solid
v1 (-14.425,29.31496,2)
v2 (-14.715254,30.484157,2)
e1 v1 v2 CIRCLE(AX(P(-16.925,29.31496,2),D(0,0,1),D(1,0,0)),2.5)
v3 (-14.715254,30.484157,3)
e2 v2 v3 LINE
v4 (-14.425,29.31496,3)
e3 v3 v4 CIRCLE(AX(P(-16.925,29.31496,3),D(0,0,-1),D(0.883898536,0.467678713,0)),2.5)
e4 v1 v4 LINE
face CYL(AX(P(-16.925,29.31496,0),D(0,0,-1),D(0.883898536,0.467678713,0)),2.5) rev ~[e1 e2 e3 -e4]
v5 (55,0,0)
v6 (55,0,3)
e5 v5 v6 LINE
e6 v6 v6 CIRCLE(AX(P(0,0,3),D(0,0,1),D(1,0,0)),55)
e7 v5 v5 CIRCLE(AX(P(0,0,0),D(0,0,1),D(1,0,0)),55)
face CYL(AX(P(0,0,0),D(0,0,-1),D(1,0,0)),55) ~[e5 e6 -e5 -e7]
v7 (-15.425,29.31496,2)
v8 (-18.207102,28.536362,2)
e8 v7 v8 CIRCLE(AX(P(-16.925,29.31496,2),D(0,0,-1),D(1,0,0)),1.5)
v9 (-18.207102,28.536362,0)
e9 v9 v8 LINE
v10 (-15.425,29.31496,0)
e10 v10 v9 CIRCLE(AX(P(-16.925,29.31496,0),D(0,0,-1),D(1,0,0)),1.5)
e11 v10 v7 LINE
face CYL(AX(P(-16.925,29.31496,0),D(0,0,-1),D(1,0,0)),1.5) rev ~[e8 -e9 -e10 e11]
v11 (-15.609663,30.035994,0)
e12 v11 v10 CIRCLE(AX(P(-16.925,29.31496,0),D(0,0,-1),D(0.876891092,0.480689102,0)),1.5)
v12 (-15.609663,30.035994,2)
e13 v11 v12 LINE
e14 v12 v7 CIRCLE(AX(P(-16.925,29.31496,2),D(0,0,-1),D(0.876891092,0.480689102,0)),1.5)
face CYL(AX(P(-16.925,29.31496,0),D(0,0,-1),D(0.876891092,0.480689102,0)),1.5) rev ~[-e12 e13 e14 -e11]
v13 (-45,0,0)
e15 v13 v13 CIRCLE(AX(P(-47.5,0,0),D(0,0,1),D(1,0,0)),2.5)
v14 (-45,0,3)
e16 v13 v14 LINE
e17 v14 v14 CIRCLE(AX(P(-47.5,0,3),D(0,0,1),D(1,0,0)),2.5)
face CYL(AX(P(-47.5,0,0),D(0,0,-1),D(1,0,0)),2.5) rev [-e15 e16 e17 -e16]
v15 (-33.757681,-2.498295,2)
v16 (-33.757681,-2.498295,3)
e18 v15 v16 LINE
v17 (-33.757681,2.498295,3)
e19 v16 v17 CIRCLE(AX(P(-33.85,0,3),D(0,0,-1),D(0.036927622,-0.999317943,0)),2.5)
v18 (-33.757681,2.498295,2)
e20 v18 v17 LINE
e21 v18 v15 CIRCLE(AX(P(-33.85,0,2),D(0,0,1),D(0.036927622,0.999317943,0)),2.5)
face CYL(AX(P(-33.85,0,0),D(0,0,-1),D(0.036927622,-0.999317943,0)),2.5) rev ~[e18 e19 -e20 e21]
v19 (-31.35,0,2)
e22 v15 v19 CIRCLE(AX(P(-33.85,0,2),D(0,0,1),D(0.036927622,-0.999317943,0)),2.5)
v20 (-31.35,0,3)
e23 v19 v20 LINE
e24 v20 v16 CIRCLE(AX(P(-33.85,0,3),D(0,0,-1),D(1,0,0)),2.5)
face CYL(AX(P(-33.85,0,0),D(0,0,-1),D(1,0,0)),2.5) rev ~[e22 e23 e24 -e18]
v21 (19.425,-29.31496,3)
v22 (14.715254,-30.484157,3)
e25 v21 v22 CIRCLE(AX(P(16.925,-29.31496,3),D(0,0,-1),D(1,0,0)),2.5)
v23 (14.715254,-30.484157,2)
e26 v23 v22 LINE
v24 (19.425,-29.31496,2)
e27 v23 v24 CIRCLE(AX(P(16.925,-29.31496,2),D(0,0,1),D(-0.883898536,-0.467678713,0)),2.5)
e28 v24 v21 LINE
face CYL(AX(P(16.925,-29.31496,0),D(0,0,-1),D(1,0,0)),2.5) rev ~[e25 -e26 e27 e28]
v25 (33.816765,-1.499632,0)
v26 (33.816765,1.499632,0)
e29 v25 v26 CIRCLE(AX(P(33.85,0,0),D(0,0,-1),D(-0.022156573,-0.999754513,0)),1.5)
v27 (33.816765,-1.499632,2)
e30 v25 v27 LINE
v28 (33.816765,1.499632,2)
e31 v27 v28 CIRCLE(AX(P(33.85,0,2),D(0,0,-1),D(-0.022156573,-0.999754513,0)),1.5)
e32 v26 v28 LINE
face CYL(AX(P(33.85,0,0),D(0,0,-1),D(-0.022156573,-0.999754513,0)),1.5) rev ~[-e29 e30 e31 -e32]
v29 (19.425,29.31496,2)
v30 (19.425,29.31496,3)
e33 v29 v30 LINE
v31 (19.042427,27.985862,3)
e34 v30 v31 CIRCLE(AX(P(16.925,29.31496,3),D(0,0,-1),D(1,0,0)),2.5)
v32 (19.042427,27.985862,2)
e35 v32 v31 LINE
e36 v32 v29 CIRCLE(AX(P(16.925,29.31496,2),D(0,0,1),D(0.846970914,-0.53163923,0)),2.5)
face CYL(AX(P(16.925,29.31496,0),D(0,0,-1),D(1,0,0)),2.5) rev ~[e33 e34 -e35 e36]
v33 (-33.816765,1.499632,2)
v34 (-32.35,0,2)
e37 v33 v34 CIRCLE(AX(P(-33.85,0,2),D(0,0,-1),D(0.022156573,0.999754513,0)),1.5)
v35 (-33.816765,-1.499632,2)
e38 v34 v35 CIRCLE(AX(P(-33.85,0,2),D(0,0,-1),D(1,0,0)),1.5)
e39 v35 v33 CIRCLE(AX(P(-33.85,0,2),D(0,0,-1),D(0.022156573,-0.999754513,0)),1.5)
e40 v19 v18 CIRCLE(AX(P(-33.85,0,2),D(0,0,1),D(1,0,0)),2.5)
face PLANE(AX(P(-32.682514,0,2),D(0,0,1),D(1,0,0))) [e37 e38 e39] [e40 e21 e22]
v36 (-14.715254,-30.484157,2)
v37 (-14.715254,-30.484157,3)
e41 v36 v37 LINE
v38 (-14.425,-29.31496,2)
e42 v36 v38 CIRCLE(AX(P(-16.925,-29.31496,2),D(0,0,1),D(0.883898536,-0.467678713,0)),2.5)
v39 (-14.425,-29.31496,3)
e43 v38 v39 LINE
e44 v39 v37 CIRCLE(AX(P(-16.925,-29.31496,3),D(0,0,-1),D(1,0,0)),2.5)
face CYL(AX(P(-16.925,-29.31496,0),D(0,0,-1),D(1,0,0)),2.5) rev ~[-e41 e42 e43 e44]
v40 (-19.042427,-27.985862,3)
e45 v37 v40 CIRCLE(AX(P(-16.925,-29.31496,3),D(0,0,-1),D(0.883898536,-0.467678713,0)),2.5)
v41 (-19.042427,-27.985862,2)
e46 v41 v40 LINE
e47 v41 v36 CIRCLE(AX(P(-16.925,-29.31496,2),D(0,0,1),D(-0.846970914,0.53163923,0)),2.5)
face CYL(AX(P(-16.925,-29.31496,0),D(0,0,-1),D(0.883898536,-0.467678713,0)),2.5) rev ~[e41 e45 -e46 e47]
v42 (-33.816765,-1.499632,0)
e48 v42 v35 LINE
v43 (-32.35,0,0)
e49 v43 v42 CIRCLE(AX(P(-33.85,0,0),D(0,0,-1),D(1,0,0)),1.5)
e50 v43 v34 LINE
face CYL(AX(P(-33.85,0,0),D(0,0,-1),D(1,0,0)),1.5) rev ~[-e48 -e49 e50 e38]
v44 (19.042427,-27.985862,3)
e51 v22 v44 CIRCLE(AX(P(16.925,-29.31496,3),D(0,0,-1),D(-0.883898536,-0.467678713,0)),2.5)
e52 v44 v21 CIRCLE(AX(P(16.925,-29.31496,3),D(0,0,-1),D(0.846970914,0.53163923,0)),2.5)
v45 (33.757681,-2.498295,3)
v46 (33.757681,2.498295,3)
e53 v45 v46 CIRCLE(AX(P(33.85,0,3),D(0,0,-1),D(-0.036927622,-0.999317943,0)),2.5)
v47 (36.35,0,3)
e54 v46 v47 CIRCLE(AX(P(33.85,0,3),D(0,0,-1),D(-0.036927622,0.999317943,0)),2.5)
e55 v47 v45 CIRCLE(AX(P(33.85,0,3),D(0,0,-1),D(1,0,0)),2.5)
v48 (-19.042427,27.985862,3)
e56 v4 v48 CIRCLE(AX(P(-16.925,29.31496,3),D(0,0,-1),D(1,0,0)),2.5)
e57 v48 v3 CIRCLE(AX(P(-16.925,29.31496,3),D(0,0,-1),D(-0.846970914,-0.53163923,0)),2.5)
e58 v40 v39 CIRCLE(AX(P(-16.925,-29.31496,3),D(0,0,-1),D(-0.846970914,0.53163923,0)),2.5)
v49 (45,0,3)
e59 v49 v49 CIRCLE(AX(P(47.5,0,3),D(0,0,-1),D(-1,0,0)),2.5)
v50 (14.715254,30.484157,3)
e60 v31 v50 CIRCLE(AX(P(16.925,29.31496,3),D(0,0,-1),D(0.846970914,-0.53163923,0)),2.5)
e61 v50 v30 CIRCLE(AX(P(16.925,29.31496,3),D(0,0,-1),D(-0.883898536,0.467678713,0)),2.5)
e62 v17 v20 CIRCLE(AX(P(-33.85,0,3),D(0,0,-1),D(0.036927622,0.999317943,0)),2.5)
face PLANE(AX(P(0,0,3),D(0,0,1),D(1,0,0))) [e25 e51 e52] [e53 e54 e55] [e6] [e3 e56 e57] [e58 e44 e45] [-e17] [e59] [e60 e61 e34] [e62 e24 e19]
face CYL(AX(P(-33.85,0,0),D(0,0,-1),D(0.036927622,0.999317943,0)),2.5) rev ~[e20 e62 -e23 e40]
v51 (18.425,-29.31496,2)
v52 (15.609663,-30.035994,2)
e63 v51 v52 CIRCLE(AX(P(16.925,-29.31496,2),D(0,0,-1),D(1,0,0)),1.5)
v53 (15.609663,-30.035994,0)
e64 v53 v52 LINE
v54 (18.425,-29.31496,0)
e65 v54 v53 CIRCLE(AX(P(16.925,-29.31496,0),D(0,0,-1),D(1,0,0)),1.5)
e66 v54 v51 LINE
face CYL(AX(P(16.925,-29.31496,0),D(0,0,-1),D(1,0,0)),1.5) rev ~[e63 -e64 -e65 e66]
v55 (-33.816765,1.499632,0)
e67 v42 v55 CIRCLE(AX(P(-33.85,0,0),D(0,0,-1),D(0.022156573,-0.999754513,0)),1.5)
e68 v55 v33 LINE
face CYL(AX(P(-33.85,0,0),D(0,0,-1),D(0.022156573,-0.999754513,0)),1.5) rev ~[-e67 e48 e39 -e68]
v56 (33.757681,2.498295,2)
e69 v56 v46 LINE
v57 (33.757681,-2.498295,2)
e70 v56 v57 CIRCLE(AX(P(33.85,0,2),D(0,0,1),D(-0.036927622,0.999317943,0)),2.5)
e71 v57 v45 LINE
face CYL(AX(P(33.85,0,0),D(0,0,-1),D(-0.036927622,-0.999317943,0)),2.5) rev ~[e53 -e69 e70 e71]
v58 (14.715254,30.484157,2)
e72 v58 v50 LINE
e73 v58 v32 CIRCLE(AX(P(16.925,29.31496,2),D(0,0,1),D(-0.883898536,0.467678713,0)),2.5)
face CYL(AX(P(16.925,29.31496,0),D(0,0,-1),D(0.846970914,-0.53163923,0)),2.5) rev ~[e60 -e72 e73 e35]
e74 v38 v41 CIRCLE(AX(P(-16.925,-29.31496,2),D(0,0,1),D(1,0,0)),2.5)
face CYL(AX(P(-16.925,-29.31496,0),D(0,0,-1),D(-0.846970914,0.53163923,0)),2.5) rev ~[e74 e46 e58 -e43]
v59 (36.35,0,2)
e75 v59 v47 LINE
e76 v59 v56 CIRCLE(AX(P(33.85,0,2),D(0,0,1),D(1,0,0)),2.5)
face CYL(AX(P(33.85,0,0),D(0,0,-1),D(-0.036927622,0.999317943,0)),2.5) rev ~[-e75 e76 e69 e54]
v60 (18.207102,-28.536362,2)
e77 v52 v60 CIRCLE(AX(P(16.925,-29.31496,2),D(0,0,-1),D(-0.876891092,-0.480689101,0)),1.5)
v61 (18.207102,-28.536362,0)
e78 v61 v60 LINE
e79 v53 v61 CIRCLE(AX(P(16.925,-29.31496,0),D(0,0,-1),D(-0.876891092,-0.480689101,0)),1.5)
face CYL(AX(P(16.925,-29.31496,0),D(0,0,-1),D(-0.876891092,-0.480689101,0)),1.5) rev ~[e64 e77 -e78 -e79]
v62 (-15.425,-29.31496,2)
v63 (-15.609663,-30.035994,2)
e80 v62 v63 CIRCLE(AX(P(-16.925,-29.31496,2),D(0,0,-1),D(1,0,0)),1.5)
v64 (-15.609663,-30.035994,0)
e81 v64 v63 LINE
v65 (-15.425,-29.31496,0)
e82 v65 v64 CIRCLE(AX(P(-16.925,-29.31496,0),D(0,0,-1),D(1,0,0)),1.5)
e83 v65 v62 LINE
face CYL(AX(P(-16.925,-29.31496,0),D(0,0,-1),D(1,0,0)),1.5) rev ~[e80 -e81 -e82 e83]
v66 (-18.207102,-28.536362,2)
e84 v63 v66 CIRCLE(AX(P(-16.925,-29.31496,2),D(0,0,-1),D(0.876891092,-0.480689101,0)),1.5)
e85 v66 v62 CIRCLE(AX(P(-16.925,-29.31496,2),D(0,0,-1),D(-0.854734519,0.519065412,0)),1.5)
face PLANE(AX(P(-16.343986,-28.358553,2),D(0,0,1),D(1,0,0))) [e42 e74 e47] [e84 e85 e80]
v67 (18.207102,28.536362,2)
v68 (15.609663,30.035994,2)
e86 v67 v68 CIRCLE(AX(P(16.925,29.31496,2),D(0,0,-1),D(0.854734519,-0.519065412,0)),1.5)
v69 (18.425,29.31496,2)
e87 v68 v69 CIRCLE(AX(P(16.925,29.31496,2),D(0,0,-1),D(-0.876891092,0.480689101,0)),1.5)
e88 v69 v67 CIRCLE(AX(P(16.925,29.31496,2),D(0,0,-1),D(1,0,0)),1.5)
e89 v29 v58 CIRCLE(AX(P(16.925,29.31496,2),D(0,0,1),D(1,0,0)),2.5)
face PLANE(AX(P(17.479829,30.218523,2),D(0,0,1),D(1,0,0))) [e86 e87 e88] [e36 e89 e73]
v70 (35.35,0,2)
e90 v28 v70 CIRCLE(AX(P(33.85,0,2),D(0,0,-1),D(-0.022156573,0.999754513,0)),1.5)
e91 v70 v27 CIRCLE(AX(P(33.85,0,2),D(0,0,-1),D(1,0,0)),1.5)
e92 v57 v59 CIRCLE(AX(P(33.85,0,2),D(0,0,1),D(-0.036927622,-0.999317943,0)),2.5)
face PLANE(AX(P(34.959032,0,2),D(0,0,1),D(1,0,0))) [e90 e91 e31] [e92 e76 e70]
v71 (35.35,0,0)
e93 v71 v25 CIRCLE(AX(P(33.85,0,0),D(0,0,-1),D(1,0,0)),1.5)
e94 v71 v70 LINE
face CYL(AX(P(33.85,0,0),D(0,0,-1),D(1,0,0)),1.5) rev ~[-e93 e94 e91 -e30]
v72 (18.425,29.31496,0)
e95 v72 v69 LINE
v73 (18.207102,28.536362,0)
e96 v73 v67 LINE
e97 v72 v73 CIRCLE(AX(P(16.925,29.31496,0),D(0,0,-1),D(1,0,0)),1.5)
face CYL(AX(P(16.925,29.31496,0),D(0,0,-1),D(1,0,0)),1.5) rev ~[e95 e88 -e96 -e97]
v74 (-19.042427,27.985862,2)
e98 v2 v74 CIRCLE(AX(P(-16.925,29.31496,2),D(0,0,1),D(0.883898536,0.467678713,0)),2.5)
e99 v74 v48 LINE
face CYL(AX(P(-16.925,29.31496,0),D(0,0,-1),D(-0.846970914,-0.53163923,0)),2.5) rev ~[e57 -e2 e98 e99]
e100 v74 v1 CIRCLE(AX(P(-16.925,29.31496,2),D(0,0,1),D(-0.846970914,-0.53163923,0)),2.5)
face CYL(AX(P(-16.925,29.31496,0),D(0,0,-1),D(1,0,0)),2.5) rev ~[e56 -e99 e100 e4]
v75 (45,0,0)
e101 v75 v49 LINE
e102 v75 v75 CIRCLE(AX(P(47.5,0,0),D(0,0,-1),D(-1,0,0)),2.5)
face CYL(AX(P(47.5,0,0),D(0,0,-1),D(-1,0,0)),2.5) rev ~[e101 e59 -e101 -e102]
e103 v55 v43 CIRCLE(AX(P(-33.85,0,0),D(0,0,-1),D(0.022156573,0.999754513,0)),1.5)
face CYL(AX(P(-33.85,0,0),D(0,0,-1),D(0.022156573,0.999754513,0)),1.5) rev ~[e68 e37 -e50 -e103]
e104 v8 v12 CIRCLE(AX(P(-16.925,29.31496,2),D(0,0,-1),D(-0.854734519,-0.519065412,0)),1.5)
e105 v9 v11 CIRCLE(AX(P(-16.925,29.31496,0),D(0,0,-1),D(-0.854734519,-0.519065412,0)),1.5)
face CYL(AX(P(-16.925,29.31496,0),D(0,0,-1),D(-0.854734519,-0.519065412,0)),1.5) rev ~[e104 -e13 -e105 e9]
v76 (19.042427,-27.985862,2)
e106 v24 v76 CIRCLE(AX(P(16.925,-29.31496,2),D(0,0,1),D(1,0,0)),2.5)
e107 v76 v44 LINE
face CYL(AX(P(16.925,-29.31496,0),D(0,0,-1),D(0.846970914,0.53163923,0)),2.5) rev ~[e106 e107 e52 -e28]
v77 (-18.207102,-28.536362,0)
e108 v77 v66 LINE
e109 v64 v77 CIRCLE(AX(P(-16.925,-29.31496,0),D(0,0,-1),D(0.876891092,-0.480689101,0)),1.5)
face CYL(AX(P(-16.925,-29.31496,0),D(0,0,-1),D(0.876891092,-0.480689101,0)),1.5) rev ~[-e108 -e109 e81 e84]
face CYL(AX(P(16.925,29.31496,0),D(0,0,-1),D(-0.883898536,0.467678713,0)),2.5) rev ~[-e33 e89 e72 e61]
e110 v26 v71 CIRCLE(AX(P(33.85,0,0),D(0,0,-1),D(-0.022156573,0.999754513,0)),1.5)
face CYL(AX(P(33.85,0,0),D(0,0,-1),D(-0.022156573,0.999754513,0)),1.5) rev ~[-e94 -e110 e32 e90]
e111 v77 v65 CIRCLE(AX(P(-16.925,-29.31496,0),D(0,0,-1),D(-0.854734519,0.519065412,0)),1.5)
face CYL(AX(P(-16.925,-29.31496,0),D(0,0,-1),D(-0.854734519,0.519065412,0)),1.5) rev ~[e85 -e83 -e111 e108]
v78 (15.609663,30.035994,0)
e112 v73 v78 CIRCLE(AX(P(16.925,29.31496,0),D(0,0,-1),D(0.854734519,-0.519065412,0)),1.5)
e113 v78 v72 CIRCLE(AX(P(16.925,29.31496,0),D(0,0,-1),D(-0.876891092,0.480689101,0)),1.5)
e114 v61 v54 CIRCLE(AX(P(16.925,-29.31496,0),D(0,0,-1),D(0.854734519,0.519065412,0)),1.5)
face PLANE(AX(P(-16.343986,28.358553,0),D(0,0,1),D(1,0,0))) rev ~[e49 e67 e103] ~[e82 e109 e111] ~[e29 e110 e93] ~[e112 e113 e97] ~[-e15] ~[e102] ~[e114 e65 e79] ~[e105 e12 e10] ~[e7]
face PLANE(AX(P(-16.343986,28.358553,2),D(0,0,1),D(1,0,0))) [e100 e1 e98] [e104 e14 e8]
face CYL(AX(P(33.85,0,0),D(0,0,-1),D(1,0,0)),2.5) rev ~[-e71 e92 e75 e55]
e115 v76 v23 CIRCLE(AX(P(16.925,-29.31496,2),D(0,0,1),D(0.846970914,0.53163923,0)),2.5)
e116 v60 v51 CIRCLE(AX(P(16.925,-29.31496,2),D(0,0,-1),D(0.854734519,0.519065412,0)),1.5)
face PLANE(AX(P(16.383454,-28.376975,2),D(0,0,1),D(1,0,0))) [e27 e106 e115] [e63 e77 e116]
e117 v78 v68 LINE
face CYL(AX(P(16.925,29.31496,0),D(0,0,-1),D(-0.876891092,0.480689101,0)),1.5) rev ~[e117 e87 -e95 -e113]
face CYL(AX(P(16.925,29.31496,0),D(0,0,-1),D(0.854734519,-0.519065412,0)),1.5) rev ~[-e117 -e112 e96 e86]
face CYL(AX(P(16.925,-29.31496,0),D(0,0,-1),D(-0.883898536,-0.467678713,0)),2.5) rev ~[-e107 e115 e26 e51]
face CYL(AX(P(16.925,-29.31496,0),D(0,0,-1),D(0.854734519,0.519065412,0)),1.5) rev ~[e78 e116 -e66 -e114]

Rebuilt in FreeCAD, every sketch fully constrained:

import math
import FreeCAD as App
import Part
import Sketcher
from FreeCAD import Vector

doc = App.newDocument("Part")
body = doc.addObject("PartDesign::Body", "Body")

# Sketch on XY plane
sketch1 = body.newObject("Sketcher::SketchObject", "Sketch")
sketch1.AttachmentSupport = (doc.getObject("XY_Plane"), [""])
sketch1.MapMode = "FlatFace"
sketch1.addGeometry(Part.Circle(Vector(0, 0, 0), Vector(0, 0, 1), 55), False)
sketch1.addGeometry(Part.Circle(Vector(-47.5, 0, 0), Vector(0, 0, 1), 2.5), False)
sketch1.addGeometry(Part.ArcOfCircle(Part.Circle(Vector(16.9, 29.3, 0), Vector(0, 0, 1), 2.5), math.radians(-32), math.radians(0)), False)
sketch1.addGeometry(Part.ArcOfCircle(Part.Circle(Vector(16.9, 29.3, 0), Vector(0, 0, 1), 2.5), math.radians(152), math.radians(328)), False)
sketch1.addGeometry(Part.ArcOfCircle(Part.Circle(Vector(16.9, 29.3, 0), Vector(0, 0, 1), 2.5), math.radians(0), math.radians(152)), False)
sketch1.addGeometry(Part.ArcOfCircle(Part.Circle(Vector(-16.9, 29.3, 0), Vector(0, 0, 1), 2.5), math.radians(28), math.radians(212)), False)
sketch1.addGeometry(Part.ArcOfCircle(Part.Circle(Vector(-16.9, 29.3, 0), Vector(0, 0, 1), 2.5), math.radians(0), math.radians(28)), False)
sketch1.addGeometry(Part.ArcOfCircle(Part.Circle(Vector(-16.9, 29.3, 0), Vector(0, 0, 1), 2.5), math.radians(-148), math.radians(0)), False)
sketch1.addGeometry(Part.ArcOfCircle(Part.Circle(Vector(-33.9, 0, 0), Vector(0, 0, 1), 2.5), math.radians(88), math.radians(272)), False)
sketch1.addGeometry(Part.ArcOfCircle(Part.Circle(Vector(-33.9, 0, 0), Vector(0, 0, 1), 2.5), math.radians(0), math.radians(88)), False)
sketch1.addGeometry(Part.ArcOfCircle(Part.Circle(Vector(-33.9, 0, 0), Vector(0, 0, 1), 2.5), math.radians(-88), math.radians(0)), False)
sketch1.addGeometry(Part.ArcOfCircle(Part.Circle(Vector(-16.9, -29.3, 0), Vector(0, 0, 1), 2.5), math.radians(148), math.radians(332)), False)
sketch1.addGeometry(Part.ArcOfCircle(Part.Circle(Vector(-16.9, -29.3, 0), Vector(0, 0, 1), 2.5), math.radians(0), math.radians(148)), False)
sketch1.addGeometry(Part.ArcOfCircle(Part.Circle(Vector(-16.9, -29.3, 0), Vector(0, 0, 1), 2.5), math.radians(-28), math.radians(0)), False)
sketch1.addGeometry(Part.ArcOfCircle(Part.Circle(Vector(16.9, -29.3, 0), Vector(0, 0, 1), 2.5), math.radians(-152), math.radians(0)), False)
sketch1.addGeometry(Part.ArcOfCircle(Part.Circle(Vector(16.9, -29.3, 0), Vector(0, 0, 1), 2.5), math.radians(32), math.radians(208)), False)
sketch1.addGeometry(Part.ArcOfCircle(Part.Circle(Vector(16.9, -29.3, 0), Vector(0, 0, 1), 2.5), math.radians(0), math.radians(32)), False)
sketch1.addGeometry(Part.ArcOfCircle(Part.Circle(Vector(33.9, 0, 0), Vector(0, 0, 1), 2.5), math.radians(-92), math.radians(0)), False)
sketch1.addGeometry(Part.ArcOfCircle(Part.Circle(Vector(33.9, 0, 0), Vector(0, 0, 1), 2.5), math.radians(92), math.radians(268)), False)
sketch1.addGeometry(Part.ArcOfCircle(Part.Circle(Vector(33.9, 0, 0), Vector(0, 0, 1), 2.5), math.radians(0), math.radians(92)), False)
sketch1.addGeometry(Part.Circle(Vector(47.5, 0, 0), Vector(0, 0, 1), 2.5), False)
sketch1.addConstraint(Sketcher.Constraint("Tangent", 2, 1, 3, 2))
sketch1.addConstraint(Sketcher.Constraint("Tangent", 3, 1, 4, 2))
sketch1.addConstraint(Sketcher.Constraint("Tangent", 4, 1, 2, 2))
sketch1.addConstraint(Sketcher.Constraint("Tangent", 5, 1, 6, 2))
sketch1.addConstraint(Sketcher.Constraint("Tangent", 6, 1, 7, 2))
sketch1.addConstraint(Sketcher.Constraint("Tangent", 7, 1, 5, 2))
sketch1.addConstraint(Sketcher.Constraint("Tangent", 8, 1, 9, 2))
sketch1.addConstraint(Sketcher.Constraint("Tangent", 9, 1, 10, 2))
sketch1.addConstraint(Sketcher.Constraint("Tangent", 10, 1, 8, 2))
sketch1.addConstraint(Sketcher.Constraint("Tangent", 11, 1, 12, 2))
sketch1.addConstraint(Sketcher.Constraint("Tangent", 12, 1, 13, 2))
sketch1.addConstraint(Sketcher.Constraint("Tangent", 13, 1, 11, 2))
sketch1.addConstraint(Sketcher.Constraint("Tangent", 14, 1, 15, 2))
sketch1.addConstraint(Sketcher.Constraint("Tangent", 15, 1, 16, 2))
sketch1.addConstraint(Sketcher.Constraint("Tangent", 16, 1, 14, 2))
sketch1.addConstraint(Sketcher.Constraint("Tangent", 17, 1, 18, 2))
sketch1.addConstraint(Sketcher.Constraint("Tangent", 18, 1, 19, 2))
sketch1.addConstraint(Sketcher.Constraint("Tangent", 19, 1, 17, 2))
sketch1.addConstraint(Sketcher.Constraint("Coincident", 0, 3, -1, 1))
sketch1.addConstraint(Sketcher.Constraint("Equal", 1, 2))
sketch1.addConstraint(Sketcher.Constraint("Equal", 4, 5))
sketch1.addConstraint(Sketcher.Constraint("Equal", 7, 8))
sketch1.addConstraint(Sketcher.Constraint("Equal", 10, 11))
sketch1.addConstraint(Sketcher.Constraint("Equal", 13, 14))
sketch1.addConstraint(Sketcher.Constraint("Equal", 16, 17))
sketch1.addConstraint(Sketcher.Constraint("Equal", 19, 20))
sketch1.addConstraint(Sketcher.Constraint("Symmetric", 2, 3, 11, 3, -1, 1))
sketch1.addConstraint(Sketcher.Constraint("Symmetric", 5, 3, 14, 3, -1, 1))
sketch1.addConstraint(Sketcher.Constraint("Symmetric", 8, 3, 17, 3, -1, 1))
sketch1.addConstraint(Sketcher.Constraint("Symmetric", 1, 3, 20, 3, -1, 1))
sketch1.addConstraint(Sketcher.Constraint("Symmetric", 2, 3, 5, 3, -2))
sketch1.addConstraint(Sketcher.Constraint("Symmetric", 10, 1, 17, 1, -2))
sketch1.addConstraint(Sketcher.Constraint("PointOnObject", 1, 3, -1))
sketch1.addConstraint(Sketcher.Constraint("PointOnObject", 9, 1, -1))
sketch1.addConstraint(Sketcher.Constraint("PointOnObject", 19, 1, -1))
sketch1.addConstraint(Sketcher.Constraint("Horizontal", 7, 3, 4, 1))
sketch1.addConstraint(Sketcher.Constraint("Horizontal", 3, 1, 5, 1))
sketch1.addConstraint(Sketcher.Constraint("Horizontal", 4, 1, 6, 1))
sketch1.addConstraint(Sketcher.Constraint("Horizontal", 2, 1, 7, 1))
sketch1.addConstraint(Sketcher.Constraint("Horizontal", 16, 3, 12, 1))
sketch1.addConstraint(Sketcher.Constraint("Horizontal", 13, 1, 14, 1))
sketch1.addConstraint(Sketcher.Constraint("Horizontal", 11, 1, 15, 1))
sketch1.addConstraint(Sketcher.Constraint("Horizontal", 12, 1, 16, 1))
sketch1.addConstraint(Sketcher.Constraint("Horizontal", 8, 1, 18, 1))
sketch1.addConstraint(Sketcher.Constraint("Vertical", 8, 1, 10, 1))
sketch1.addConstraint(Sketcher.Constraint("Vertical", 7, 1, 11, 1))
sketch1.addConstraint(Sketcher.Constraint("Vertical", 5, 1, 13, 1))
sketch1.addConstraint(Sketcher.Constraint("Diameter", 0, 110.0))
sketch1.addConstraint(Sketcher.Constraint("Diameter", 1, 5.0))
sketch1.addConstraint(Sketcher.Constraint("DistanceX", 1, 3, -1, 1, 47.5))
sketch1.addConstraint(Sketcher.Constraint("DistanceX", 8, 3, -1, 1, 33.85))
sketch1.addConstraint(Sketcher.Constraint("DistanceX", 5, 3, 2, 3, 33.85))
sketch1.addConstraint(Sketcher.Constraint("DistanceY", 2, 1, 2, 3, 1.329098))
sketch1.addConstraint(Sketcher.Constraint("DistanceY", -1, 1, 2, 3, 29.31496))
sketch1.addConstraint(Sketcher.Constraint("DistanceX", 8, 1, -1, 1, 33.757681))
sketch1.addConstraint(Sketcher.Constraint("DistanceX", -1, 1, 3, 1, 14.715254))
pad1 = body.newObject("PartDesign::Pad", "Pad")
pad1.Profile = sketch1
pad1.Length = 3

# Sketch on XY plane
sketch2 = body.newObject("Sketcher::SketchObject", "Sketch001")
sketch2.AttachmentSupport = (doc.getObject("XY_Plane"), [""])
sketch2.MapMode = "FlatFace"
sketch2.addGeometry(Part.ArcOfCircle(Part.Circle(Vector(-16.925, 29.31496, 0), Vector(0, 0, 1), 2.5), math.radians(0), math.radians(27.883722)), False)
sketch2.addGeometry(Part.ArcOfCircle(Part.Circle(Vector(-16.925, 29.31496, 0), Vector(0, 0, 1), 2.5), math.radians(27.883722), math.radians(212.116278)), False)
sketch2.addGeometry(Part.ArcOfCircle(Part.Circle(Vector(-16.925, 29.31496, 0), Vector(0, 0, 1), 2.5), math.radians(-147.883722), math.radians(0)), False)
sketch2.addGeometry(Part.ArcOfCircle(Part.Circle(Vector(-16.925, 29.31496, 0), Vector(0, 0, 1), 1.5), math.radians(0), math.radians(28.730418)), False)
sketch2.addGeometry(Part.ArcOfCircle(Part.Circle(Vector(-16.925, 29.31496, 0), Vector(0, 0, 1), 1.5), math.radians(-148.730418), math.radians(0)), False)
sketch2.addGeometry(Part.ArcOfCircle(Part.Circle(Vector(-16.925, 29.31496, 0), Vector(0, 0, 1), 1.5), math.radians(28.730418), math.radians(211.269582)), False)
sketch2.addGeometry(Part.ArcOfCircle(Part.Circle(Vector(-33.85, 0, 0), Vector(0, 0, 1), 2.5), math.radians(0), math.radians(87.883722)), False)
sketch2.addGeometry(Part.ArcOfCircle(Part.Circle(Vector(-33.85, 0, 0), Vector(0, 0, 1), 2.5), math.radians(87.883722), math.radians(272.116278)), False)
sketch2.addGeometry(Part.ArcOfCircle(Part.Circle(Vector(-33.85, 0, 0), Vector(0, 0, 1), 2.5), math.radians(-87.883722), math.radians(0)), False)
sketch2.addGeometry(Part.ArcOfCircle(Part.Circle(Vector(-33.85, 0, 0), Vector(0, 0, 1), 1.5), math.radians(0), math.radians(88.730418)), False)
sketch2.addGeometry(Part.ArcOfCircle(Part.Circle(Vector(-33.85, 0, 0), Vector(0, 0, 1), 1.5), math.radians(-88.730418), math.radians(0)), False)
sketch2.addGeometry(Part.ArcOfCircle(Part.Circle(Vector(-33.85, 0, 0), Vector(0, 0, 1), 1.5), math.radians(88.730418), math.radians(271.269582)), False)
sketch2.addGeometry(Part.ArcOfCircle(Part.Circle(Vector(-16.925, -29.31496, 0), Vector(0, 0, 1), 2.5), math.radians(-27.883722), math.radians(0)), False)
sketch2.addGeometry(Part.ArcOfCircle(Part.Circle(Vector(-16.925, -29.31496, 0), Vector(0, 0, 1), 2.5), math.radians(0), math.radians(147.883722)), False)
sketch2.addGeometry(Part.ArcOfCircle(Part.Circle(Vector(-16.925, -29.31496, 0), Vector(0, 0, 1), 2.5), math.radians(147.883722), math.radians(332.116278)), False)
sketch2.addGeometry(Part.ArcOfCircle(Part.Circle(Vector(-16.925, -29.31496, 0), Vector(0, 0, 1), 1.5), math.radians(0), math.radians(148.730418)), False)
sketch2.addGeometry(Part.ArcOfCircle(Part.Circle(Vector(-16.925, -29.31496, 0), Vector(0, 0, 1), 1.5), math.radians(-28.730418), math.radians(0)), False)
sketch2.addGeometry(Part.ArcOfCircle(Part.Circle(Vector(-16.925, -29.31496, 0), Vector(0, 0, 1), 1.5), math.radians(148.730418), math.radians(331.269582)), False)
sketch2.addGeometry(Part.ArcOfCircle(Part.Circle(Vector(16.925, -29.31496, 0), Vector(0, 0, 1), 2.5), math.radians(32.116278), math.radians(207.883722)), False)
sketch2.addGeometry(Part.ArcOfCircle(Part.Circle(Vector(16.925, -29.31496, 0), Vector(0, 0, 1), 2.5), math.radians(-152.116278), math.radians(0)), False)
sketch2.addGeometry(Part.ArcOfCircle(Part.Circle(Vector(16.925, -29.31496, 0), Vector(0, 0, 1), 2.5), math.radians(0), math.radians(32.116278)), False)
sketch2.addGeometry(Part.ArcOfCircle(Part.Circle(Vector(16.925, -29.31496, 0), Vector(0, 0, 1), 1.5), math.radians(31.269582), math.radians(208.730418)), False)
sketch2.addGeometry(Part.ArcOfCircle(Part.Circle(Vector(16.925, -29.31496, 0), Vector(0, 0, 1), 1.5), math.radians(0), math.radians(31.269582)), False)
sketch2.addGeometry(Part.ArcOfCircle(Part.Circle(Vector(16.925, -29.31496, 0), Vector(0, 0, 1), 1.5), math.radians(-151.269582), math.radians(0)), False)
sketch2.addGeometry(Part.ArcOfCircle(Part.Circle(Vector(33.85, 0, 0), Vector(0, 0, 1), 2.5), math.radians(-92.116278), math.radians(0)), False)
sketch2.addGeometry(Part.ArcOfCircle(Part.Circle(Vector(33.85, 0, 0), Vector(0, 0, 1), 2.5), math.radians(0), math.radians(92.116278)), False)
sketch2.addGeometry(Part.ArcOfCircle(Part.Circle(Vector(33.85, 0, 0), Vector(0, 0, 1), 2.5), math.radians(92.116278), math.radians(267.883722)), False)
sketch2.addGeometry(Part.ArcOfCircle(Part.Circle(Vector(33.85, 0, 0), Vector(0, 0, 1), 1.5), math.radians(0), math.radians(91.269582)), False)
sketch2.addGeometry(Part.ArcOfCircle(Part.Circle(Vector(33.85, 0, 0), Vector(0, 0, 1), 1.5), math.radians(-91.269582), math.radians(0)), False)
sketch2.addGeometry(Part.ArcOfCircle(Part.Circle(Vector(33.85, 0, 0), Vector(0, 0, 1), 1.5), math.radians(91.269582), math.radians(268.730418)), False)
sketch2.addGeometry(Part.ArcOfCircle(Part.Circle(Vector(16.925, 29.31496, 0), Vector(0, 0, 1), 2.5), math.radians(-32.116278), math.radians(0)), False)
sketch2.addGeometry(Part.ArcOfCircle(Part.Circle(Vector(16.925, 29.31496, 0), Vector(0, 0, 1), 2.5), math.radians(0), math.radians(152.116278)), False)
sketch2.addGeometry(Part.ArcOfCircle(Part.Circle(Vector(16.925, 29.31496, 0), Vector(0, 0, 1), 2.5), math.radians(152.116278), math.radians(327.883722)), False)
sketch2.addGeometry(Part.ArcOfCircle(Part.Circle(Vector(16.925, 29.31496, 0), Vector(0, 0, 1), 1.5), math.radians(0), math.radians(151.269582)), False)
sketch2.addGeometry(Part.ArcOfCircle(Part.Circle(Vector(16.925, 29.31496, 0), Vector(0, 0, 1), 1.5), math.radians(-31.269582), math.radians(0)), False)
sketch2.addGeometry(Part.ArcOfCircle(Part.Circle(Vector(16.925, 29.31496, 0), Vector(0, 0, 1), 1.5), math.radians(151.269582), math.radians(328.730418)), False)
sketch2.addConstraint(Sketcher.Constraint("Tangent", 0, 2, 1, 1))
sketch2.addConstraint(Sketcher.Constraint("Tangent", 1, 2, 2, 1))
sketch2.addConstraint(Sketcher.Constraint("Tangent", 2, 2, 0, 1))
sketch2.addConstraint(Sketcher.Constraint("Tangent", 3, 1, 4, 2))
sketch2.addConstraint(Sketcher.Constraint("Tangent", 4, 1, 5, 2))
sketch2.addConstraint(Sketcher.Constraint("Tangent", 5, 1, 3, 2))
sketch2.addConstraint(Sketcher.Constraint("Tangent", 6, 2, 7, 1))
sketch2.addConstraint(Sketcher.Constraint("Tangent", 7, 2, 8, 1))
sketch2.addConstraint(Sketcher.Constraint("Tangent", 8, 2, 6, 1))
sketch2.addConstraint(Sketcher.Constraint("Tangent", 9, 1, 10, 2))
sketch2.addConstraint(Sketcher.Constraint("Tangent", 10, 1, 11, 2))
sketch2.addConstraint(Sketcher.Constraint("Tangent", 11, 1, 9, 2))
sketch2.addConstraint(Sketcher.Constraint("Tangent", 12, 2, 13, 1))
sketch2.addConstraint(Sketcher.Constraint("Tangent", 13, 2, 14, 1))
sketch2.addConstraint(Sketcher.Constraint("Tangent", 14, 2, 12, 1))
sketch2.addConstraint(Sketcher.Constraint("Tangent", 15, 1, 16, 2))
sketch2.addConstraint(Sketcher.Constraint("Tangent", 16, 1, 17, 2))
sketch2.addConstraint(Sketcher.Constraint("Tangent", 17, 1, 15, 2))
sketch2.addConstraint(Sketcher.Constraint("Tangent", 18, 2, 19, 1))
sketch2.addConstraint(Sketcher.Constraint("Tangent", 19, 2, 20, 1))
sketch2.addConstraint(Sketcher.Constraint("Tangent", 20, 2, 18, 1))
sketch2.addConstraint(Sketcher.Constraint("Tangent", 21, 1, 22, 2))
sketch2.addConstraint(Sketcher.Constraint("Tangent", 22, 1, 23, 2))
sketch2.addConstraint(Sketcher.Constraint("Tangent", 23, 1, 21, 2))
sketch2.addConstraint(Sketcher.Constraint("Tangent", 24, 2, 25, 1))
sketch2.addConstraint(Sketcher.Constraint("Tangent", 25, 2, 26, 1))
sketch2.addConstraint(Sketcher.Constraint("Tangent", 26, 2, 24, 1))
sketch2.addConstraint(Sketcher.Constraint("Tangent", 27, 1, 28, 2))
sketch2.addConstraint(Sketcher.Constraint("Tangent", 28, 1, 29, 2))
sketch2.addConstraint(Sketcher.Constraint("Tangent", 29, 1, 27, 2))
sketch2.addConstraint(Sketcher.Constraint("Tangent", 30, 2, 31, 1))
sketch2.addConstraint(Sketcher.Constraint("Tangent", 31, 2, 32, 1))
sketch2.addConstraint(Sketcher.Constraint("Tangent", 32, 2, 30, 1))
sketch2.addConstraint(Sketcher.Constraint("Tangent", 33, 1, 34, 2))
sketch2.addConstraint(Sketcher.Constraint("Tangent", 34, 1, 35, 2))
sketch2.addConstraint(Sketcher.Constraint("Tangent", 35, 1, 33, 2))
sketch2.addConstraint(Sketcher.Constraint("Coincident", 3, 3, 0, 3))
sketch2.addConstraint(Sketcher.Constraint("Coincident", 9, 3, 6, 3))
sketch2.addConstraint(Sketcher.Constraint("Coincident", 15, 3, 12, 3))
sketch2.addConstraint(Sketcher.Constraint("Coincident", 21, 3, 18, 3))
sketch2.addConstraint(Sketcher.Constraint("Coincident", 27, 3, 24, 3))
sketch2.addConstraint(Sketcher.Constraint("Coincident", 33, 3, 30, 3))
sketch2.addConstraint(Sketcher.Constraint("Equal", 2, 6))
sketch2.addConstraint(Sketcher.Constraint("Equal", 5, 9))
sketch2.addConstraint(Sketcher.Constraint("Equal", 8, 12))
sketch2.addConstraint(Sketcher.Constraint("Equal", 11, 15))
sketch2.addConstraint(Sketcher.Constraint("Equal", 14, 18))
sketch2.addConstraint(Sketcher.Constraint("Equal", 17, 21))
sketch2.addConstraint(Sketcher.Constraint("Equal", 20, 24))
sketch2.addConstraint(Sketcher.Constraint("Equal", 23, 27))
sketch2.addConstraint(Sketcher.Constraint("Equal", 26, 30))
sketch2.addConstraint(Sketcher.Constraint("Equal", 29, 33))
sketch2.addConstraint(Sketcher.Constraint("Symmetric", 0, 3, 18, 3, -1, 1))
sketch2.addConstraint(Sketcher.Constraint("Symmetric", 6, 3, 24, 3, -1, 1))
sketch2.addConstraint(Sketcher.Constraint("Symmetric", 12, 3, 30, 3, -1, 1))
sketch2.addConstraint(Sketcher.Constraint("Symmetric", 12, 3, 18, 3, -2))
sketch2.addConstraint(Sketcher.Constraint("Symmetric", 6, 2, 25, 2, -2))
sketch2.addConstraint(Sketcher.Constraint("PointOnObject", 8, 2, -1))
sketch2.addConstraint(Sketcher.Constraint("PointOnObject", 9, 1, -1))
sketch2.addConstraint(Sketcher.Constraint("PointOnObject", 24, 2, -1))
sketch2.addConstraint(Sketcher.Constraint("PointOnObject", 27, 1, -1))
sketch2.addConstraint(Sketcher.Constraint("Horizontal", 35, 3, 2, 2))
sketch2.addConstraint(Sketcher.Constraint("Horizontal", 2, 2, 3, 1))
sketch2.addConstraint(Sketcher.Constraint("Horizontal", 23, 3, 12, 2))
sketch2.addConstraint(Sketcher.Constraint("Horizontal", 12, 2, 15, 1))
sketch2.addConstraint(Sketcher.Constraint("Horizontal", 14, 2, 18, 2))
sketch2.addConstraint(Sketcher.Constraint("Horizontal", 15, 1, 19, 2))
sketch2.addConstraint(Sketcher.Constraint("Horizontal", 13, 2, 20, 2))
sketch2.addConstraint(Sketcher.Constraint("Horizontal", 17, 1, 21, 1))
sketch2.addConstraint(Sketcher.Constraint("Horizontal", 19, 2, 22, 1))
sketch2.addConstraint(Sketcher.Constraint("Horizontal", 16, 1, 23, 1))
sketch2.addConstraint(Sketcher.Constraint("Horizontal", 7, 2, 26, 2))
sketch2.addConstraint(Sketcher.Constraint("Horizontal", 10, 1, 28, 1))
sketch2.addConstraint(Sketcher.Constraint("Horizontal", 11, 1, 29, 1))
sketch2.addConstraint(Sketcher.Constraint("Horizontal", 3, 1, 30, 2))
sketch2.addConstraint(Sketcher.Constraint("Horizontal", 0, 2, 31, 2))
sketch2.addConstraint(Sketcher.Constraint("Horizontal", 1, 2, 32, 2))
sketch2.addConstraint(Sketcher.Constraint("Horizontal", 30, 2, 33, 1))
sketch2.addConstraint(Sketcher.Constraint("Horizontal", 4, 1, 34, 1))
sketch2.addConstraint(Sketcher.Constraint("Horizontal", 5, 1, 35, 1))
sketch2.addConstraint(Sketcher.Constraint("Vertical", 6, 2, 7, 2))
sketch2.addConstraint(Sketcher.Constraint("Vertical", 10, 1, 11, 1))
sketch2.addConstraint(Sketcher.Constraint("Vertical", 1, 2, 13, 2))
sketch2.addConstraint(Sketcher.Constraint("Vertical", 0, 2, 14, 2))
sketch2.addConstraint(Sketcher.Constraint("Vertical", 5, 1, 16, 1))
sketch2.addConstraint(Sketcher.Constraint("Vertical", 4, 1, 17, 1))
sketch2.addConstraint(Sketcher.Constraint("Radius", 0, 2.5))
sketch2.addConstraint(Sketcher.Constraint("Radius", 3, 1.5))
sketch2.addConstraint(Sketcher.Constraint("DistanceX", 6, 3, -1, 1, 33.85))
sketch2.addConstraint(Sketcher.Constraint("DistanceX", 0, 3, -1, 1, 16.925))
sketch2.addConstraint(Sketcher.Constraint("DistanceX", 4, 1, -1, 1, 18.207102))
sketch2.addConstraint(Sketcher.Constraint("DistanceY", -1, 1, 0, 3, 29.31496))
sketch2.addConstraint(Sketcher.Constraint("DistanceY", -1, 1, 1, 2, 27.985862))
sketch2.addConstraint(Sketcher.Constraint("DistanceX", 6, 2, -1, 1, 33.757681))
sketch2.addConstraint(Sketcher.Constraint("DistanceY", 10, 1, -1, 1, 1.499632))
sketch2.addConstraint(Sketcher.Constraint("DistanceX", 0, 2, -1, 1, 14.715254))
sketch2.addConstraint(Sketcher.Constraint("DistanceX", 5, 1, -1, 1, 15.609663))
pad2 = body.newObject("PartDesign::Pad", "Pad001")
pad2.Profile = sketch2
pad2.Length = 2

doc.recompute()
